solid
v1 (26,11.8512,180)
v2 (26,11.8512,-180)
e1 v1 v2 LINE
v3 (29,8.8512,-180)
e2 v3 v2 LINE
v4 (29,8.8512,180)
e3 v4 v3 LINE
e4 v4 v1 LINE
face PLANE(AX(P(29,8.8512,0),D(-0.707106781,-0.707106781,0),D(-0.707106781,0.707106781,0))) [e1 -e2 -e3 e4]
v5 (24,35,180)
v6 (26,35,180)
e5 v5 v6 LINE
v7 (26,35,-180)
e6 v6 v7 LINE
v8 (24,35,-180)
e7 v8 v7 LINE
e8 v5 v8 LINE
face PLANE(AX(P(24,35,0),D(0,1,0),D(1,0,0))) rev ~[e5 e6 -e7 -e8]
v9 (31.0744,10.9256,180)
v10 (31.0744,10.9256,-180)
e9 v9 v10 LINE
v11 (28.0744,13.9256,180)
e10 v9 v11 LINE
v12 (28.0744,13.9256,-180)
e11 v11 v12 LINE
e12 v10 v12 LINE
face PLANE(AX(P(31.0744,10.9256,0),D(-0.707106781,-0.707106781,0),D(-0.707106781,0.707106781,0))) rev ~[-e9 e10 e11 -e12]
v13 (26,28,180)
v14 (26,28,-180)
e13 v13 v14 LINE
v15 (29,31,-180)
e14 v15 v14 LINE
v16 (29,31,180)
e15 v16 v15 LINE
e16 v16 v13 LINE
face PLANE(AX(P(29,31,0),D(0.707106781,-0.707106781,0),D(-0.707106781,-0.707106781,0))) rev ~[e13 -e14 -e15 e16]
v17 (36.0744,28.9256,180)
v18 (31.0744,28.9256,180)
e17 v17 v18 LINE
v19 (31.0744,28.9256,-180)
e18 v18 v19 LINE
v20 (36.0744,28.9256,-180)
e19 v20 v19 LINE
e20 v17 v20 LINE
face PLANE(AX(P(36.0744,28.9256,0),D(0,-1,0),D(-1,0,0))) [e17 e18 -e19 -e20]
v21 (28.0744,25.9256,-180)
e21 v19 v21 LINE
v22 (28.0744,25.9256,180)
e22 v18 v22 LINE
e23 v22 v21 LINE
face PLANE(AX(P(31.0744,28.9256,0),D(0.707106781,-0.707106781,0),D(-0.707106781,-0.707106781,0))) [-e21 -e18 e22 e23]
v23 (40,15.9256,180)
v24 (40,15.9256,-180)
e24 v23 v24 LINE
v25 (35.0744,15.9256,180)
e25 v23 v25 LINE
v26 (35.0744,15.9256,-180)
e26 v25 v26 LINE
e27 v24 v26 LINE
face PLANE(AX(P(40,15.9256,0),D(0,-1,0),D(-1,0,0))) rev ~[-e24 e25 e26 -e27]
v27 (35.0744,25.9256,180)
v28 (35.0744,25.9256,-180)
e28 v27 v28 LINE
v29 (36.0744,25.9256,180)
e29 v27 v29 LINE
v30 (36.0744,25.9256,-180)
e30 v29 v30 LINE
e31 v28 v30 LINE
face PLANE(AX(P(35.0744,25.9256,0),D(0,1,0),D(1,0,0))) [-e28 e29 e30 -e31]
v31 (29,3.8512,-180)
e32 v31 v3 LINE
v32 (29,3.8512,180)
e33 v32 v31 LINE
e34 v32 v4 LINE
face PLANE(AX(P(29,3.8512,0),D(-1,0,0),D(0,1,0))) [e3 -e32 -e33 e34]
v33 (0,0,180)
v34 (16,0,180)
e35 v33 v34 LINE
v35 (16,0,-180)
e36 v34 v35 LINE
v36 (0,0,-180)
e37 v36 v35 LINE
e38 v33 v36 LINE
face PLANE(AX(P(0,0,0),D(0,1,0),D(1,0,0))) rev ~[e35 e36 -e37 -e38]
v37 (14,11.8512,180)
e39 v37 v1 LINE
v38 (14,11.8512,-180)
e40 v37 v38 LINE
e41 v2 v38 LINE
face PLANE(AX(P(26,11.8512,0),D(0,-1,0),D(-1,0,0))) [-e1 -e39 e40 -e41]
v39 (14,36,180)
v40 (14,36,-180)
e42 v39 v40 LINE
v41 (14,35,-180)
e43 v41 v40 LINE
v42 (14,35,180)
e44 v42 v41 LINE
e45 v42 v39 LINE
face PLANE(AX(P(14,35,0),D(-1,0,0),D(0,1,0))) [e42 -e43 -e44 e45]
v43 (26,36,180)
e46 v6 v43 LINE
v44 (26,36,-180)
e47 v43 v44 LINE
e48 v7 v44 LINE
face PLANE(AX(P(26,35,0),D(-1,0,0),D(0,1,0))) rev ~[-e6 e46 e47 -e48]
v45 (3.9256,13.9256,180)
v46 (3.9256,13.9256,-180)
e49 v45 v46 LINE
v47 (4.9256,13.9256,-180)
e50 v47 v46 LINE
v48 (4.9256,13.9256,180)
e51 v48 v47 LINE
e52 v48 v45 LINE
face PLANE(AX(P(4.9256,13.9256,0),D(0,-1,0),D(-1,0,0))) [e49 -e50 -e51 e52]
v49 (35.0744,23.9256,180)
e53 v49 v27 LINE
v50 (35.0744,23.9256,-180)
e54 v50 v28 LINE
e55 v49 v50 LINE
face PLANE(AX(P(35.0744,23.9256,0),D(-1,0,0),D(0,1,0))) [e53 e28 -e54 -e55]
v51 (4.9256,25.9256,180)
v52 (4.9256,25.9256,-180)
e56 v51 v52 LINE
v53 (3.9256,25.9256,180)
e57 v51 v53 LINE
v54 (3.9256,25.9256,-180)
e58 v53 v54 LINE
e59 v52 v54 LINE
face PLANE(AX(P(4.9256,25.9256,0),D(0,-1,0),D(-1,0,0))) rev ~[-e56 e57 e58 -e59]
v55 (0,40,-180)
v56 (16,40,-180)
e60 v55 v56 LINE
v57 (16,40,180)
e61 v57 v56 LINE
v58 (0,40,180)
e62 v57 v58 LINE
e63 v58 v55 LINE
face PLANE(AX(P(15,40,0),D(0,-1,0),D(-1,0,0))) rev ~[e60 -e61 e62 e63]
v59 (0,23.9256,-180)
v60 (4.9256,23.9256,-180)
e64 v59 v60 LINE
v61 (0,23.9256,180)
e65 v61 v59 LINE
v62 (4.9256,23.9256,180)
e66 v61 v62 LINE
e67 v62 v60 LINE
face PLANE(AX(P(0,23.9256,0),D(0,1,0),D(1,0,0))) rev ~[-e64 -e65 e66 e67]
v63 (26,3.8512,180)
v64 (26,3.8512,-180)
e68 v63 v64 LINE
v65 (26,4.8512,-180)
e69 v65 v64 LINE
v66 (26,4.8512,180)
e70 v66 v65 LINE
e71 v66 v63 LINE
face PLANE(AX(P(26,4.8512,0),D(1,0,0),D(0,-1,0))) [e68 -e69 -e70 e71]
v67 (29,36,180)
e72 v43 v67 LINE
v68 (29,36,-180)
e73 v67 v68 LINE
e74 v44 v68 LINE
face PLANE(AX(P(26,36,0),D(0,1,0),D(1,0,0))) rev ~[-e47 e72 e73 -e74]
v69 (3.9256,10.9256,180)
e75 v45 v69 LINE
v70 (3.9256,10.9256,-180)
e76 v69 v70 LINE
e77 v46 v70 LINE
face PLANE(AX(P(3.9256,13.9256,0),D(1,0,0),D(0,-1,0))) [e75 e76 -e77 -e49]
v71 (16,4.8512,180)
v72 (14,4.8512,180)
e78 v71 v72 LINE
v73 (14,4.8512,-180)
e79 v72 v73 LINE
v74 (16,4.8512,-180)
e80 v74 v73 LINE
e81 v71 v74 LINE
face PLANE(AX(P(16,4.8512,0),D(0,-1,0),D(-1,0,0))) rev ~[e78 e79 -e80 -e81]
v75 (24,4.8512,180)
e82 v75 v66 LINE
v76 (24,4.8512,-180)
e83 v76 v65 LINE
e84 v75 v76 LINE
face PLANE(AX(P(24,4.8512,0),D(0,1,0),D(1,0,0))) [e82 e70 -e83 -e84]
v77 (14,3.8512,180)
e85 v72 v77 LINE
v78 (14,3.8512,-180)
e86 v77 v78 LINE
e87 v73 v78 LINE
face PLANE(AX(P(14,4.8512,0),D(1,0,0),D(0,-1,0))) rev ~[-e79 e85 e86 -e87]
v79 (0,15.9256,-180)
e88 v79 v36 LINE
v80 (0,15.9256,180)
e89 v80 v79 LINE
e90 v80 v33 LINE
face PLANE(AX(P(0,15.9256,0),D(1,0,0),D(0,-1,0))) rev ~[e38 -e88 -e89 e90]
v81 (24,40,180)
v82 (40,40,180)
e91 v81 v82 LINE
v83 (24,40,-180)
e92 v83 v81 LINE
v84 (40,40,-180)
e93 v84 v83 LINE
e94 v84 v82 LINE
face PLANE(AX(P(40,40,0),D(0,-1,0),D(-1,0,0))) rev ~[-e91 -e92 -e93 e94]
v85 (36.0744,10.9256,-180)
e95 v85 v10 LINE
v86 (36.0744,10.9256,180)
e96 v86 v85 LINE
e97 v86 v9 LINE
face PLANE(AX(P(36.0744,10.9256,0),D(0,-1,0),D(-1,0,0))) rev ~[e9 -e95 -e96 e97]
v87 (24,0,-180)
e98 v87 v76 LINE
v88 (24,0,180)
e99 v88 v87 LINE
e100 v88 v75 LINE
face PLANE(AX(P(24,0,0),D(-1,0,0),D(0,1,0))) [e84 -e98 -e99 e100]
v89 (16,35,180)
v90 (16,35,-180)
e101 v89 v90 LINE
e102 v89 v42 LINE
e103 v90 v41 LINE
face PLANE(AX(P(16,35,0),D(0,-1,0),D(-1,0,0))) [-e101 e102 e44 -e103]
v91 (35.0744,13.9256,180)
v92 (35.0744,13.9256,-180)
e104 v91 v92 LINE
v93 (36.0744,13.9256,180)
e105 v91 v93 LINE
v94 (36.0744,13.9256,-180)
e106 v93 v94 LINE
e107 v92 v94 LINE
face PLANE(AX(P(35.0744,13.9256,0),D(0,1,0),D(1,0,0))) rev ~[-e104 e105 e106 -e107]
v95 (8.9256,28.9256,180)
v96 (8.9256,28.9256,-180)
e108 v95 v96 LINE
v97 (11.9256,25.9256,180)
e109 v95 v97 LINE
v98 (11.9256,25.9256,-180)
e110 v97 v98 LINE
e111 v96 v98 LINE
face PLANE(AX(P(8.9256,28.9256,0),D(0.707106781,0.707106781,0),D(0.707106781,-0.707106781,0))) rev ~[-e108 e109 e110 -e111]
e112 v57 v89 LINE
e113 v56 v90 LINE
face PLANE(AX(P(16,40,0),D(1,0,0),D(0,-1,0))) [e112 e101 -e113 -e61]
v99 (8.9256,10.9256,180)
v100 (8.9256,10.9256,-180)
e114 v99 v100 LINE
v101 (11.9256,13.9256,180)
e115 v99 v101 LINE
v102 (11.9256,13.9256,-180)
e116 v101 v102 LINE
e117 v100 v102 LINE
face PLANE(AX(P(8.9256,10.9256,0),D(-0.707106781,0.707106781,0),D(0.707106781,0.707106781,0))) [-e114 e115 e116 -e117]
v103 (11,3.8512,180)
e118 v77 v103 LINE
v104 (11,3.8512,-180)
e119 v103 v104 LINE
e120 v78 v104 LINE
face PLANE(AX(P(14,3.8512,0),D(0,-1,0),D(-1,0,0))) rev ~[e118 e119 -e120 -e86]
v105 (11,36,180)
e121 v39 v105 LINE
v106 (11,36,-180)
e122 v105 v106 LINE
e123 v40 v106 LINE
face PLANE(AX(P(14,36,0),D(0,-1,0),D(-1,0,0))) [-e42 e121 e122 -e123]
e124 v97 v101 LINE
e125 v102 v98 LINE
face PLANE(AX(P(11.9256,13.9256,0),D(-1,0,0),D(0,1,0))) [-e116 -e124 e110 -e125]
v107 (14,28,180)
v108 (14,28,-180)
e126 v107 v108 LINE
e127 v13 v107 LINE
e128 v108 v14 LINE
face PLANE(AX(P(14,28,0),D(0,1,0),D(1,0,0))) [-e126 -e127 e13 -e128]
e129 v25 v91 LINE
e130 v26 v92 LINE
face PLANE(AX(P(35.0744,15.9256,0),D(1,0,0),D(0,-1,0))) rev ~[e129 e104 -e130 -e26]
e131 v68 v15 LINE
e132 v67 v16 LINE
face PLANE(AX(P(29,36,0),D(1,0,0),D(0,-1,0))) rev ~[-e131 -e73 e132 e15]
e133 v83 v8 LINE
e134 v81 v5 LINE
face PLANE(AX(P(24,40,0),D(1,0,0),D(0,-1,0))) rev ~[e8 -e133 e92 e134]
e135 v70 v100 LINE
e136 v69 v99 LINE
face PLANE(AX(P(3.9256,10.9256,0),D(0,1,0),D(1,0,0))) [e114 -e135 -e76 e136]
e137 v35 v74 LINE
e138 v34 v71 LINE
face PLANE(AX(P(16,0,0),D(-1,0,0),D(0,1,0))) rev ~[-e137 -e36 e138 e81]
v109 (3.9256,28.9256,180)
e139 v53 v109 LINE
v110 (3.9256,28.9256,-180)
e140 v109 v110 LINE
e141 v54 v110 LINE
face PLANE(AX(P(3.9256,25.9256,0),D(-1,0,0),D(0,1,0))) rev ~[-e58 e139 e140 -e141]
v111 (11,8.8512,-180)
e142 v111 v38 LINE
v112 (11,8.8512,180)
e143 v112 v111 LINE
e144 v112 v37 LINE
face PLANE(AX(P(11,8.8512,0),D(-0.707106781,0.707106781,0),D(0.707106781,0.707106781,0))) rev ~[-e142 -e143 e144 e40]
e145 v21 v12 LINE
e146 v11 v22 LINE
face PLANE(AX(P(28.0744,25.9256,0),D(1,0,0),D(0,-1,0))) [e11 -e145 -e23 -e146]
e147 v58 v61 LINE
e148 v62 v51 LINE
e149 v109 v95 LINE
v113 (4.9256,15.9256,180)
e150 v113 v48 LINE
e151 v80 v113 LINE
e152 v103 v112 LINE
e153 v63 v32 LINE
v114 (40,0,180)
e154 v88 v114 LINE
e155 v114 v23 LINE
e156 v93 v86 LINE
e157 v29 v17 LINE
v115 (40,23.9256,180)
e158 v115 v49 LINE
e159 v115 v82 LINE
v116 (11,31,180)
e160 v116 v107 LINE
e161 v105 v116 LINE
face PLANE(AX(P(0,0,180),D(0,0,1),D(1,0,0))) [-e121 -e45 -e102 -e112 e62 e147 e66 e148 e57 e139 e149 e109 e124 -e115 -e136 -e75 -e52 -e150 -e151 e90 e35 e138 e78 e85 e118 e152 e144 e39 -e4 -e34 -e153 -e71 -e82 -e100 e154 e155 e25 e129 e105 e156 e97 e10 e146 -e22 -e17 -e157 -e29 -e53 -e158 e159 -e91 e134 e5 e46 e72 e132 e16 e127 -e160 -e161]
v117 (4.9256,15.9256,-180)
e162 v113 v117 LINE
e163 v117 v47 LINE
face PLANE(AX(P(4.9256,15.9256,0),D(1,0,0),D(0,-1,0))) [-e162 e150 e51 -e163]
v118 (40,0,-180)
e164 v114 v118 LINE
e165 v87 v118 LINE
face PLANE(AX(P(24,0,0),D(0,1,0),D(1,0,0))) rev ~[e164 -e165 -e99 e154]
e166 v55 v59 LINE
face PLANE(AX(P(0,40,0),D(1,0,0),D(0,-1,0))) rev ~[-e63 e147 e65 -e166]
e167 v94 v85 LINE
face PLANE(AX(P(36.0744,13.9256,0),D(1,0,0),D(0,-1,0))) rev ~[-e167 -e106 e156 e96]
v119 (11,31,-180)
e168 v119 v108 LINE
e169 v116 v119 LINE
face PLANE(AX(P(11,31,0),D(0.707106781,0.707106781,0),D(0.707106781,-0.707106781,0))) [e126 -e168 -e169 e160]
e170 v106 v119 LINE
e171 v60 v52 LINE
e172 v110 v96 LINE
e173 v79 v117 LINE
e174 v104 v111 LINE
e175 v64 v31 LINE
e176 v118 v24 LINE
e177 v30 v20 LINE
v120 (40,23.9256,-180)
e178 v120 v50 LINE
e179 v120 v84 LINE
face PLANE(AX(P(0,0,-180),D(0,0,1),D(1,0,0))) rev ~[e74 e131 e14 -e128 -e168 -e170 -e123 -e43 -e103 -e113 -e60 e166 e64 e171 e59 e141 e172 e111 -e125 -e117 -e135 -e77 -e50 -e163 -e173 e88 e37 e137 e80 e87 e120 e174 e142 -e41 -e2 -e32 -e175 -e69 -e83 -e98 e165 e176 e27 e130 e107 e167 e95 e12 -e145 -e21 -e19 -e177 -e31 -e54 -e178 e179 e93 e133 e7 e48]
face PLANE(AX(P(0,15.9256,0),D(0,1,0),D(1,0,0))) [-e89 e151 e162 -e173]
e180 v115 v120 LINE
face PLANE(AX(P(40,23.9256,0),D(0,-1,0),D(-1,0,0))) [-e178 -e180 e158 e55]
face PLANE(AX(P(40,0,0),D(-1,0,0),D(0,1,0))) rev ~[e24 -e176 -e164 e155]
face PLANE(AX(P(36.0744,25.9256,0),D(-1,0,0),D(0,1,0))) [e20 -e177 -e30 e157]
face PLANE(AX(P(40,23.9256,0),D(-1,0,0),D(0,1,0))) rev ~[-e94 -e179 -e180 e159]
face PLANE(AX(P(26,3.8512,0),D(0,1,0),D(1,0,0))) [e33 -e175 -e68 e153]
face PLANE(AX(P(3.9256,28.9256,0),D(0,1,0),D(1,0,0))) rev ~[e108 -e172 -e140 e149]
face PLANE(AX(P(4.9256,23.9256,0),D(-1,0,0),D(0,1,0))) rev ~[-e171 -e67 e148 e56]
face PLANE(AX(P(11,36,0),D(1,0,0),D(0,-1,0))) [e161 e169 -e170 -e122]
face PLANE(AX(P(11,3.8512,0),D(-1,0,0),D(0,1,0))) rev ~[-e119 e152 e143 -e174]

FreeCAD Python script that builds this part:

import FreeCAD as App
import Part
import Sketcher
Q = App.Units.Quantity


def add_polygon(sketch, points):
    """Adds a closed chain of lines whose ends are joined by coincident constraints."""
    first, n = sketch.GeometryCount, len(points)
    for a, b in zip(points, points[1:] + points[:1]):
        sketch.addGeometry(Part.LineSegment(App.Vector(*a, 0), App.Vector(*b, 0)), False)
    for i in range(n):
        sketch.addConstraint(Sketcher.Constraint("Coincident", first + i, 2, first + (i + 1) % n, 1))

doc = App.newDocument("Part")
params = doc.addObject("Spreadsheet::Sheet", "Params")
for row, (alias, value) in enumerate([
    ("sketch1_width", "2 mm"),
    ("sketch1_width2", "3 mm"),
    ("sketch1_width3", "1 mm"),
    ("sketch1_width4", "5 mm"),
    ("sketch1_width5", "16 mm"),
    ("pad1_length", "360 mm"),
], start=1):
    params.set(f"A{row}", alias)
    params.set(f"B{row}", "=" + value)
    params.setAlias(f"B{row}", alias)

body = doc.addObject("PartDesign::Body", "Body")

# Sketch on XY plane
sketch1 = body.newObject("Sketcher::SketchObject", "Sketch")
sketch1.AttachmentSupport = (doc.getObject("XY_Plane"), [""])
sketch1.MapMode = "FlatFace"
add_polygon(sketch1, [(40, 23.9256), (40, 40), (24, 40), (24, 35), (26, 35), (26, 36), (29, 36), (29, 31), (26, 28), (14, 28), (11, 31), (11, 36), (14, 36), (14, 35), (16, 35), (16, 40), (0, 40), (0, 23.9256), (4.9256, 23.9256), (4.9256, 25.9256), (3.9256, 25.9256), (3.9256, 28.9256), (8.9256, 28.9256), (11.9256, 25.9256), (11.9256, 13.9256), (8.9256, 10.9256), (3.9256, 10.9256), (3.9256, 13.9256), (4.9256, 13.9256), (4.9256, 15.9256), (0, 15.9256), (0, 0), (16, 0), (16, 4.8512), (14, 4.8512), (14, 3.8512), (11, 3.8512), (11, 8.8512), (14, 11.8512), (26, 11.8512), (29, 8.8512), (29, 3.8512), (26, 3.8512), (26, 4.8512), (24, 4.8512), (24, 0), (40, 0), (40, 15.9256), (35.0744, 15.9256), (35.0744, 13.9256), (36.0744, 13.9256), (36.0744, 10.9256), (31.0744, 10.9256), (28.0744, 13.9256), (28.0744, 25.9256), (31.0744, 28.9256), (36.0744, 28.9256), (36.0744, 25.9256), (35.0744, 25.9256), (35.0744, 23.9256)])  # lines 0-59
sketch1.addConstraint(Sketcher.Constraint("Vertical", 0))
sketch1.addConstraint(Sketcher.Constraint("Horizontal", 1))
sketch1.addConstraint(Sketcher.Constraint("Vertical", 2))
sketch1.addConstraint(Sketcher.Constraint("Horizontal", 3))
sketch1.addConstraint(Sketcher.Constraint("Vertical", 4))
sketch1.addConstraint(Sketcher.Constraint("Horizontal", 5))
sketch1.addConstraint(Sketcher.Constraint("Vertical", 6))
sketch1.addConstraint(Sketcher.Constraint("Horizontal", 8))
sketch1.addConstraint(Sketcher.Constraint("Vertical", 10))
sketch1.addConstraint(Sketcher.Constraint("Horizontal", 11))
sketch1.addConstraint(Sketcher.Constraint("Vertical", 12))
sketch1.addConstraint(Sketcher.Constraint("Horizontal", 13))
sketch1.addConstraint(Sketcher.Constraint("Vertical", 14))
sketch1.addConstraint(Sketcher.Constraint("Horizontal", 15))
sketch1.addConstraint(Sketcher.Constraint("Vertical", 16))
sketch1.addConstraint(Sketcher.Constraint("Horizontal", 17))
sketch1.addConstraint(Sketcher.Constraint("Vertical", 18))
sketch1.addConstraint(Sketcher.Constraint("Horizontal", 19))
sketch1.addConstraint(Sketcher.Constraint("Vertical", 20))
sketch1.addConstraint(Sketcher.Constraint("Horizontal", 21))
sketch1.addConstraint(Sketcher.Constraint("Vertical", 23))
sketch1.addConstraint(Sketcher.Constraint("Horizontal", 25))
sketch1.addConstraint(Sketcher.Constraint("Vertical", 26))
sketch1.addConstraint(Sketcher.Constraint("Horizontal", 27))
sketch1.addConstraint(Sketcher.Constraint("Vertical", 28))
sketch1.addConstraint(Sketcher.Constraint("Horizontal", 29))
sketch1.addConstraint(Sketcher.Constraint("Vertical", 30))
sketch1.addConstraint(Sketcher.Constraint("Horizontal", 31))
sketch1.addConstraint(Sketcher.Constraint("Vertical", 32))
sketch1.addConstraint(Sketcher.Constraint("Horizontal", 33))
sketch1.addConstraint(Sketcher.Constraint("Vertical", 34))
sketch1.addConstraint(Sketcher.Constraint("Horizontal", 35))
sketch1.addConstraint(Sketcher.Constraint("Vertical", 36))
sketch1.addConstraint(Sketcher.Constraint("Horizontal", 38))
sketch1.addConstraint(Sketcher.Constraint("Vertical", 40))
sketch1.addConstraint(Sketcher.Constraint("Horizontal", 41))
sketch1.addConstraint(Sketcher.Constraint("Vertical", 42))
sketch1.addConstraint(Sketcher.Constraint("Horizontal", 43))
sketch1.addConstraint(Sketcher.Constraint("Vertical", 44))
sketch1.addConstraint(Sketcher.Constraint("Horizontal", 45))
sketch1.addConstraint(Sketcher.Constraint("Vertical", 46))
sketch1.addConstraint(Sketcher.Constraint("Horizontal", 47))
sketch1.addConstraint(Sketcher.Constraint("Vertical", 48))
sketch1.addConstraint(Sketcher.Constraint("Horizontal", 49))
sketch1.addConstraint(Sketcher.Constraint("Vertical", 50))
sketch1.addConstraint(Sketcher.Constraint("Horizontal", 51))
sketch1.addConstraint(Sketcher.Constraint("Vertical", 53))
sketch1.addConstraint(Sketcher.Constraint("Horizontal", 55))
sketch1.addConstraint(Sketcher.Constraint("Vertical", 56))
sketch1.addConstraint(Sketcher.Constraint("Horizontal", 57))
sketch1.addConstraint(Sketcher.Constraint("Vertical", 58))
sketch1.addConstraint(Sketcher.Constraint("Horizontal", 59))
sketch1.addConstraint(Sketcher.Constraint("Coincident", 30, 2, -1, 1))
sketch1.addConstraint(Sketcher.Constraint("PointOnObject", 15, 2, -2))
sketch1.addConstraint(Sketcher.Constraint("PointOnObject", 44, 2, -1))
sketch1.addConstraint(Sketcher.Constraint("Perpendicular", 7, 9))
sketch1.addConstraint(Sketcher.Constraint("Parallel", 9, 22))
sketch1.addConstraint(Sketcher.Constraint("Perpendicular", 22, 24))
sketch1.addConstraint(Sketcher.Constraint("Parallel", 24, 37))
sketch1.addConstraint(Sketcher.Constraint("Perpendicular", 37, 39))
sketch1.addConstraint(Sketcher.Constraint("Parallel", 39, 52))
sketch1.addConstraint(Sketcher.Constraint("Perpendicular", 52, 54))
sketch1.addConstraint(Sketcher.Constraint("Horizontal", 6, 2, 9, 2))
sketch1.addConstraint(Sketcher.Constraint("Horizontal", 5, 2, 10, 2))
sketch1.addConstraint(Sketcher.Constraint("Horizontal", 3, 2, 12, 2))
sketch1.addConstraint(Sketcher.Constraint("Horizontal", 1, 2, 14, 2))
sketch1.addConstraint(Sketcher.Constraint("Horizontal", 19, 2, 22, 2))
sketch1.addConstraint(Sketcher.Constraint("Horizontal", 23, 2, 26, 2))
sketch1.addConstraint(Sketcher.Constraint("Horizontal", 36, 2, 39, 2))
sketch1.addConstraint(Sketcher.Constraint("Horizontal", 35, 2, 40, 2))
sketch1.addConstraint(Sketcher.Constraint("Horizontal", 33, 2, 42, 2))
sketch1.addConstraint(Sketcher.Constraint("Horizontal", 29, 2, 46, 2))
sketch1.addConstraint(Sketcher.Constraint("Horizontal", 27, 2, 48, 2))
sketch1.addConstraint(Sketcher.Constraint("Horizontal", 25, 2, 50, 2))
sketch1.addConstraint(Sketcher.Constraint("Horizontal", 49, 2, 52, 2))
sketch1.addConstraint(Sketcher.Constraint("Horizontal", 22, 2, 53, 2))
sketch1.addConstraint(Sketcher.Constraint("Horizontal", 21, 2, 54, 2))
sketch1.addConstraint(Sketcher.Constraint("Horizontal", 53, 2, 56, 2))
sketch1.addConstraint(Sketcher.Constraint("Horizontal", 17, 2, 58, 2))
sketch1.addConstraint(Sketcher.Constraint("Vertical", 4, 2, 7, 2))
sketch1.addConstraint(Sketcher.Constraint("Vertical", 8, 2, 11, 2))
sketch1.addConstraint(Sketcher.Constraint("Vertical", 21, 2, 24, 2))
sketch1.addConstraint(Sketcher.Constraint("Vertical", 20, 2, 25, 2))
sketch1.addConstraint(Sketcher.Constraint("Vertical", 18, 2, 27, 2))
sketch1.addConstraint(Sketcher.Constraint("Vertical", 14, 2, 31, 2))
sketch1.addConstraint(Sketcher.Constraint("Vertical", 12, 2, 33, 2))
sketch1.addConstraint(Sketcher.Constraint("Vertical", 10, 2, 35, 2))
sketch1.addConstraint(Sketcher.Constraint("Vertical", 34, 2, 37, 2))
sketch1.addConstraint(Sketcher.Constraint("Vertical", 7, 2, 38, 2))
sketch1.addConstraint(Sketcher.Constraint("Vertical", 6, 2, 39, 2))
sketch1.addConstraint(Sketcher.Constraint("Vertical", 38, 2, 41, 2))
sketch1.addConstraint(Sketcher.Constraint("Vertical", 2, 2, 43, 2))
sketch1.addConstraint(Sketcher.Constraint("Vertical", 0, 2, 45, 2))
sketch1.addConstraint(Sketcher.Constraint("Vertical", 50, 2, 55, 2))
sketch1.addConstraint(Sketcher.Constraint("Vertical", 48, 2, 57, 2))
sketch1.addConstraint(Sketcher.Constraint("Equal", 3, 13))
sketch1.addConstraint(Sketcher.Constraint("Equal", 1, 15))
sketch1.addConstraint(Sketcher.Constraint("Equal", 29, 47))
sketch1.addConstraint(Sketcher.Constraint("Equal", 27, 49))
sketch1.addConstraint(Sketcher.Constraint("Equal", 25, 51))
sketch1.addConstraint(Sketcher.Constraint("Equal", 55, 2))
sketch1.addConstraint(Sketcher.Constraint("Equal", 57, 4))
sketch1.addConstraint(Sketcher.Constraint("Equal", 2, 6))
sketch1.addConstraint(Sketcher.Constraint("Equal", 43, 18))
sketch1.addConstraint(Sketcher.Constraint("Equal", 41, 20))
sketch1.addConstraint(Sketcher.Constraint("Equal", 38, 23))
sketch1.addConstraint(Sketcher.Constraint("Equal", 18, 28))
sketch1.addConstraint(Sketcher.Constraint("Equal", 12, 34))
sketch1.addConstraint(Sketcher.Constraint("Equal", 14, 36))
sketch1.addConstraint(Sketcher.Constraint("DistanceX", 3, 1, 3, 2, Q("2 mm")))
sketch1.addConstraint(Sketcher.Constraint("DistanceX", 5, 1, 5, 2, Q("3 mm")))
sketch1.addConstraint(Sketcher.Constraint("DistanceX", 19, 2, 19, 1, Q("1 mm")))
sketch1.addConstraint(Sketcher.Constraint("DistanceX", 21, 1, 21, 2, Q("5 mm")))
sketch1.addConstraint(Sketcher.Constraint("DistanceX", -1, 1, 0, 2, Q("40 mm")))
sketch1.addConstraint(Sketcher.Constraint("DistanceY", -1, 1, 0, 2, Q("40 mm")))
sketch1.addConstraint(Sketcher.Constraint("DistanceX", 1, 2, 1, 1, Q("16 mm")))
sketch1.addConstraint(Sketcher.Constraint("DistanceX", 17, 1, 17, 2, Q("4.9256 mm")))
sketch1.addConstraint(Sketcher.Constraint("DistanceY", 0, 1, 0, 2, Q("16.0744 mm")))
sketch1.addConstraint(Sketcher.Constraint("DistanceY", 32, 1, 32, 2, Q("4.8512 mm")))
sketch1.setExpression("Constraints[169]", "Params.sketch1_width")
sketch1.setExpression("Constraints[170]", "Params.sketch1_width2")
sketch1.setExpression("Constraints[171]", "Params.sketch1_width3")
sketch1.setExpression("Constraints[172]", "Params.sketch1_width4")
sketch1.setExpression("Constraints[175]", "Params.sketch1_width5")
pad1 = body.newObject("PartDesign::Pad", "Pad")
pad1.Profile = sketch1
pad1.setExpression("Length", "Params.pad1_length")
pad1.Midplane = True

doc.recompute()
